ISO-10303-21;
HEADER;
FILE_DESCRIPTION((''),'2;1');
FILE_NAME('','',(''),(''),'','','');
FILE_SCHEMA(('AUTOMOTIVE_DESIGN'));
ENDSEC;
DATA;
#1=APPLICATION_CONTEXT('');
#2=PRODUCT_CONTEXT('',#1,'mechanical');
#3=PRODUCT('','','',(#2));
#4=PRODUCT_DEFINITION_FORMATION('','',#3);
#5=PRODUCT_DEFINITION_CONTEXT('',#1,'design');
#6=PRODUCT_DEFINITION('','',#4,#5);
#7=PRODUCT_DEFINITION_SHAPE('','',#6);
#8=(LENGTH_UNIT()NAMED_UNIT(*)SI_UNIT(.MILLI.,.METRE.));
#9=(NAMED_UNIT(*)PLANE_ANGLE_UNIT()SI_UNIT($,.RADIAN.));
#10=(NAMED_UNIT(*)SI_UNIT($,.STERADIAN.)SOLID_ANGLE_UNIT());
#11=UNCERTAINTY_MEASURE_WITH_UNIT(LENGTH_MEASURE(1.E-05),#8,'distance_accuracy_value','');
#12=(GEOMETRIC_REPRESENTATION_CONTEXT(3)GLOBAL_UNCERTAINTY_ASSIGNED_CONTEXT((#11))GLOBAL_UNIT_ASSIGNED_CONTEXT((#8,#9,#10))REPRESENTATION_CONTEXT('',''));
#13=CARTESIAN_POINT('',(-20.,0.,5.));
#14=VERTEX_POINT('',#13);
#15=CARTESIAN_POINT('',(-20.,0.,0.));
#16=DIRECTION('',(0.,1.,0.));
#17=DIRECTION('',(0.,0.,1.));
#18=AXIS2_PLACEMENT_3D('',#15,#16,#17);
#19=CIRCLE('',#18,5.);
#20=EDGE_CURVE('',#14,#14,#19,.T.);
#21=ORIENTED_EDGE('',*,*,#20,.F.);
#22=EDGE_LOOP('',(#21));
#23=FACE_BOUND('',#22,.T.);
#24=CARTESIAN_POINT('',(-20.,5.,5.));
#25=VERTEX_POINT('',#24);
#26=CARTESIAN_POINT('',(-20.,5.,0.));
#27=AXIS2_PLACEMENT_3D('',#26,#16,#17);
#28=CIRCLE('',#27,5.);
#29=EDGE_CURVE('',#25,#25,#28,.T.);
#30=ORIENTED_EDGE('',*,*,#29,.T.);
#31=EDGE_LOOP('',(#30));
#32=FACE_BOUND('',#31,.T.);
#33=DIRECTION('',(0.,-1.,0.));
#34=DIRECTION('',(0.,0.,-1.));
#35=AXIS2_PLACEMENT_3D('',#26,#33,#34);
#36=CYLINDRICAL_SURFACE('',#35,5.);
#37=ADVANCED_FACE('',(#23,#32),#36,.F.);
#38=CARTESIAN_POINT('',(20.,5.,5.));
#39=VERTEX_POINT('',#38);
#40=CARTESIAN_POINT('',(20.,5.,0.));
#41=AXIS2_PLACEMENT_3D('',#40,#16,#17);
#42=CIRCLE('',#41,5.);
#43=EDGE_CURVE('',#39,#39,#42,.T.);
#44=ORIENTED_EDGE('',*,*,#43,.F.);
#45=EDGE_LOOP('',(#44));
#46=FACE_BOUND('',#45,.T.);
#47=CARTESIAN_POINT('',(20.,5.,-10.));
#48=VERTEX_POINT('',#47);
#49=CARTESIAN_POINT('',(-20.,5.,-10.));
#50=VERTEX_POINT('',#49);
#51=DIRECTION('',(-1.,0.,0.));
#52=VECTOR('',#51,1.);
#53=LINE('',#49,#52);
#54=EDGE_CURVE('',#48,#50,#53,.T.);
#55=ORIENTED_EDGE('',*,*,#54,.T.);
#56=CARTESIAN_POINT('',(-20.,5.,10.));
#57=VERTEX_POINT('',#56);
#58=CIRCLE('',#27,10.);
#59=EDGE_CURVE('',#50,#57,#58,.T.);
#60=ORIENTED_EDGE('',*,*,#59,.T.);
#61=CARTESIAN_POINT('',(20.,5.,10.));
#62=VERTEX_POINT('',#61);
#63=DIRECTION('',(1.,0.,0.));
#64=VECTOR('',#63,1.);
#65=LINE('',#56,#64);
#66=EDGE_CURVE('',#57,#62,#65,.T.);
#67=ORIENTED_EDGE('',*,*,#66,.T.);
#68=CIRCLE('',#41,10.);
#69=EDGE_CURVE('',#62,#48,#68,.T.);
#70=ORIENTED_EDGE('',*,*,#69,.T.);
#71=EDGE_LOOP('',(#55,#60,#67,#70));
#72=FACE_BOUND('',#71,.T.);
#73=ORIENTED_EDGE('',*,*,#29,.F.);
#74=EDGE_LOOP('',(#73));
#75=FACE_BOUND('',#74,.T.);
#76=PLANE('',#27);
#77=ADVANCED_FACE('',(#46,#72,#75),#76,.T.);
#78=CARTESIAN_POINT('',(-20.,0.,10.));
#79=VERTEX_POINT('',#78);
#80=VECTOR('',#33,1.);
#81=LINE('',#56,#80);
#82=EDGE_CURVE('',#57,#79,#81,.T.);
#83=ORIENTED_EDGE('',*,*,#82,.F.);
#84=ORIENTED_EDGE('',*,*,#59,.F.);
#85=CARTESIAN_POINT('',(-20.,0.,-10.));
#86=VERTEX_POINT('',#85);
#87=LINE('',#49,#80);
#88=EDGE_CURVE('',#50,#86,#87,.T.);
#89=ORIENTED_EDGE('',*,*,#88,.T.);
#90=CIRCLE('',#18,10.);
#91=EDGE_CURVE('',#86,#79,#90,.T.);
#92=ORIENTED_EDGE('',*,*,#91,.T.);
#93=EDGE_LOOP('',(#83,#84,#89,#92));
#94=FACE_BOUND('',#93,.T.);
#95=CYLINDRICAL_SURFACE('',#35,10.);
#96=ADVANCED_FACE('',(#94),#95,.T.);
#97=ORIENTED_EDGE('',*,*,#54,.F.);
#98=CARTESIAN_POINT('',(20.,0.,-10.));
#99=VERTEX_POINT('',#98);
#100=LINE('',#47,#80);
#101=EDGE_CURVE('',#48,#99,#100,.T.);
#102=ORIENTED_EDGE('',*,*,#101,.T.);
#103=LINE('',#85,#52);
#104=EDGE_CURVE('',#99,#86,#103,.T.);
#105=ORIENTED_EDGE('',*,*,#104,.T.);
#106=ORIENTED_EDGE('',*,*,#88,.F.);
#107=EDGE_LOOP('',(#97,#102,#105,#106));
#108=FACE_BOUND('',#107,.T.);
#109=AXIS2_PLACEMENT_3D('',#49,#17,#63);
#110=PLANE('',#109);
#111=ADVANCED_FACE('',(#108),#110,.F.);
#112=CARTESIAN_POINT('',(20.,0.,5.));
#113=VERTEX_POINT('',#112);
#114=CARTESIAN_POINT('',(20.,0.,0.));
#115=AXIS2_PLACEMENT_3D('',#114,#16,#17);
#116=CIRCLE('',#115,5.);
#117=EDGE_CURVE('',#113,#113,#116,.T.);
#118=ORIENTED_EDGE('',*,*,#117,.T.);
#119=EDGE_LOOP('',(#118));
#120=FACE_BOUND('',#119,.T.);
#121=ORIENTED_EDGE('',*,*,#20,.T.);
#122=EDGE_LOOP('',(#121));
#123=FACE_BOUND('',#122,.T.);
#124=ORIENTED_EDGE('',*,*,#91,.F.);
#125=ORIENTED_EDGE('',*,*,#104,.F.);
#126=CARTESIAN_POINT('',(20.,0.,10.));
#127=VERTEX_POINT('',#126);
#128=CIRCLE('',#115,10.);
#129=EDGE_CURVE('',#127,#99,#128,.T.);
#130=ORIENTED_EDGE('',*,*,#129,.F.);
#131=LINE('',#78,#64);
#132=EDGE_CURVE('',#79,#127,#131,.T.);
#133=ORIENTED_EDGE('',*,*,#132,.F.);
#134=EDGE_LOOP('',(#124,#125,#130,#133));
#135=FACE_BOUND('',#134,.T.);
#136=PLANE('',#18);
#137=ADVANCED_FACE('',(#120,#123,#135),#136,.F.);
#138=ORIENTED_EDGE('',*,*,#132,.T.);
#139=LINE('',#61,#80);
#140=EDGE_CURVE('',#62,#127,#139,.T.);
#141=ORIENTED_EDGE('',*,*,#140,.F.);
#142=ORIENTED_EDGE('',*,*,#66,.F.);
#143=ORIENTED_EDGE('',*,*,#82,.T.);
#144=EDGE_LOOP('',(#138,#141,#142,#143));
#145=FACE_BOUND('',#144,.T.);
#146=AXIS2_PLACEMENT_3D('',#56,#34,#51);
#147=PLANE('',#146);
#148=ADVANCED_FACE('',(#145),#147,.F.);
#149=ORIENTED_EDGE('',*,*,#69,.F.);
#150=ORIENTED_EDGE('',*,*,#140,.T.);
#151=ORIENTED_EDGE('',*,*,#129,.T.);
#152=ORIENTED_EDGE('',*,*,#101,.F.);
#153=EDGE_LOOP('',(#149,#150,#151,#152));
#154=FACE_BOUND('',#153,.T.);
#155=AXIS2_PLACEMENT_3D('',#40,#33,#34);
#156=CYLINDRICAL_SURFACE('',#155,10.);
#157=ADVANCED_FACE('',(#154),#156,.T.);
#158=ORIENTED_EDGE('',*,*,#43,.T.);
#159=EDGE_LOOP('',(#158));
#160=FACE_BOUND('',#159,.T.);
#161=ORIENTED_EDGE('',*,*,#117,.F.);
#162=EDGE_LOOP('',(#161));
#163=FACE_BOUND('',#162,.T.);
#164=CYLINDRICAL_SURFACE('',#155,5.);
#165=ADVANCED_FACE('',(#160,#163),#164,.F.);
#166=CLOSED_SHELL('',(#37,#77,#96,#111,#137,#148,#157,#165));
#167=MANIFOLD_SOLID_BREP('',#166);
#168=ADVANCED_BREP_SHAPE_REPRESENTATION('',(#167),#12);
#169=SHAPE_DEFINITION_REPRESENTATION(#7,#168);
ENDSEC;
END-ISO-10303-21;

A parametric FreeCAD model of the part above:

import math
import FreeCAD as App
import Part
import Sketcher
Q = App.Units.Quantity

doc = App.newDocument("Part")
body = doc.addObject("PartDesign::Body", "Body")

# Sketch on XZ plane
sketch1 = doc.addObject("Sketcher::SketchObject", "Sketch")
body.addObject(sketch1)
sketch1.AttachmentSupport = (doc.XZ_Plane, [""])
sketch1.MapMode = "FlatFace"
sketch1.addGeometry([
    Part.LineSegment(App.Vector(20, -10, 0), App.Vector(-20, -10, 0)),  # 0
    Part.ArcOfCircle(Part.Circle(App.Vector(-20, 0, 0), App.Vector(0, 0, 1), 10), math.radians(90), math.radians(270)),  # 1
    Part.LineSegment(App.Vector(-20, 10, 0), App.Vector(20, 10, 0)),  # 2
    Part.ArcOfCircle(Part.Circle(App.Vector(20, 0, 0), App.Vector(0, 0, 1), 10), math.radians(-90), math.radians(90)),  # 3
    Part.Circle(App.Vector(20, 0, 0), App.Vector(0, 0, 1), 5),  # 4
    Part.Circle(App.Vector(-20, 0, 0), App.Vector(0, 0, 1), 5),  # 5
], False)
sketch1.addConstraint([
    Sketcher.Constraint("Tangent", 0, 2, 1, 2),
    Sketcher.Constraint("Tangent", 1, 1, 2, 1),
    Sketcher.Constraint("Tangent", 2, 2, 3, 2),
    Sketcher.Constraint("Tangent", 3, 1, 0, 1),
    Sketcher.Constraint("Horizontal", 0),
    Sketcher.Constraint("Horizontal", 2),
    Sketcher.Constraint("Coincident", 4, 3, 3, 3),
    Sketcher.Constraint("Coincident", 5, 3, 1, 3),
    Sketcher.Constraint("Equal", 4, 5),
    Sketcher.Constraint("Symmetric", 1, 3, 3, 3, -1, 1),
    Sketcher.Constraint("Diameter", 4, Q("10 mm")),
    Sketcher.Constraint("Radius", 1, Q("10 mm")),
    Sketcher.Constraint("DistanceX", 0, 2, 0, 1, Q("40 mm")),
])
pad1 = doc.addObject("PartDesign::Pad", "Pad")
body.addObject(pad1)
pad1.Profile = sketch1
pad1.Length = 5
pad1.Reversed = True

doc.recompute()
